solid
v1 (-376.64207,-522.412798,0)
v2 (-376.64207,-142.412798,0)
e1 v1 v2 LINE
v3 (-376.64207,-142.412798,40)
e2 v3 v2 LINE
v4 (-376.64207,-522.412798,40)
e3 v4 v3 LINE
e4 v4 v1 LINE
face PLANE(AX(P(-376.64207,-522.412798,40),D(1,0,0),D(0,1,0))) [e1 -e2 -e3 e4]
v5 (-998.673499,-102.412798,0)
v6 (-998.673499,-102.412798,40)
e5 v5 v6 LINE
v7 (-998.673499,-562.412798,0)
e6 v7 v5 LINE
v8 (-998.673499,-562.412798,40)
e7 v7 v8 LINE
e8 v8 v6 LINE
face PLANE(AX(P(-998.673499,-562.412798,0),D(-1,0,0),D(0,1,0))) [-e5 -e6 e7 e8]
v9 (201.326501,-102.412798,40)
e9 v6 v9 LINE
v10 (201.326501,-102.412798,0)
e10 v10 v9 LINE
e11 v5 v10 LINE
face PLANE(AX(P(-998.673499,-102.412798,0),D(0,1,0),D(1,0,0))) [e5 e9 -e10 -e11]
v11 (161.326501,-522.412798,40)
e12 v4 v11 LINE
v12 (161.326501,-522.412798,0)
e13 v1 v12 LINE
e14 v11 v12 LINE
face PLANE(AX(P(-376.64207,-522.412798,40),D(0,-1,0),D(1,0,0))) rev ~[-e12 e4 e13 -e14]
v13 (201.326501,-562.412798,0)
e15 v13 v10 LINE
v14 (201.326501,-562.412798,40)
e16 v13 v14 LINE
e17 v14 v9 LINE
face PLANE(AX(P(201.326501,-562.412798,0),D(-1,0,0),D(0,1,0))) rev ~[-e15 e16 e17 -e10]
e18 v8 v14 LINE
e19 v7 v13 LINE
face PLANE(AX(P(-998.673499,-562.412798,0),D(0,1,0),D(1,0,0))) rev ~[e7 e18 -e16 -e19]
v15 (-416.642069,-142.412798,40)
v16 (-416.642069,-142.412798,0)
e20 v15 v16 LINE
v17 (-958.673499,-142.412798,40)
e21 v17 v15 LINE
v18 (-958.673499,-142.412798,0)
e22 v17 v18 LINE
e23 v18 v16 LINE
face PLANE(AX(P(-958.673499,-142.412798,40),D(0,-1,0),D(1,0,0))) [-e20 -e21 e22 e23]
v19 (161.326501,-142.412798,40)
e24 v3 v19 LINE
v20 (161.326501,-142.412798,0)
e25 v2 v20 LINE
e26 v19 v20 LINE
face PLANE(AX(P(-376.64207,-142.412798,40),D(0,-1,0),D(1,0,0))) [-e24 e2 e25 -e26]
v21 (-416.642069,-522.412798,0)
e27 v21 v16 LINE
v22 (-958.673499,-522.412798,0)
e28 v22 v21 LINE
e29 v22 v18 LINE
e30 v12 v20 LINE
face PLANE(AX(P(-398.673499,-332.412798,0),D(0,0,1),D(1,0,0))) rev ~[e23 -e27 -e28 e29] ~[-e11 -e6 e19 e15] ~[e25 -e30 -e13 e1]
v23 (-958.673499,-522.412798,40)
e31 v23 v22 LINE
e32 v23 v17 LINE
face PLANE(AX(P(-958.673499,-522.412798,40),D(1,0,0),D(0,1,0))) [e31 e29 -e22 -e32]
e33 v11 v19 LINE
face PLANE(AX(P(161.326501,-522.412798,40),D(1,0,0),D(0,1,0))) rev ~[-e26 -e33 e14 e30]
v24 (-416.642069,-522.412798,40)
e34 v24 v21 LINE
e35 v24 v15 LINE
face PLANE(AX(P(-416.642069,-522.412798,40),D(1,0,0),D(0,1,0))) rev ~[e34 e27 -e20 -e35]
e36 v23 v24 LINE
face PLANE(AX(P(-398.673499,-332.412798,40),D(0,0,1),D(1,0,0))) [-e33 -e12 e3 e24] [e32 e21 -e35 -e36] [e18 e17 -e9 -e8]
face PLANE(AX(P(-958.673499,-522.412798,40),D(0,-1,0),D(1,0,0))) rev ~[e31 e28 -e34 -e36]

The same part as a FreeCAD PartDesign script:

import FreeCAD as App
import Part
import Sketcher
Q = App.Units.Quantity

doc = App.newDocument("Part")
body = doc.addObject("PartDesign::Body", "Body")

# Sketch on XY plane
sketch1 = body.newObject("Sketcher::SketchObject", "Sketch")
sketch1.AttachmentSupport = (doc.getObject("XY_Plane"), [""])
sketch1.MapMode = "FlatFace"
sketch1.addGeometry([
    Part.LineSegment(App.Vector(-999, -102, 0), App.Vector(-999, -562, 0)),
    Part.LineSegment(App.Vector(-999, -562, 0), App.Vector(201, -562, 0)),
    Part.LineSegment(App.Vector(201, -562, 0), App.Vector(201, -102, 0)),
    Part.LineSegment(App.Vector(201, -102, 0), App.Vector(-999, -102, 0)),
], False)
sketch1.addConstraint([
    Sketcher.Constraint("Coincident", 0, 2, 1, 1),
    Sketcher.Constraint("Coincident", 1, 2, 2, 1),
    Sketcher.Constraint("Coincident", 2, 2, 3, 1),
    Sketcher.Constraint("Coincident", 3, 2, 0, 1),
    Sketcher.Constraint("Vertical", 0),
    Sketcher.Constraint("Horizontal", 1),
    Sketcher.Constraint("Vertical", 2),
    Sketcher.Constraint("Horizontal", 3),
    Sketcher.Constraint("DistanceX", 1, 1, 1, 2, Q("1200 mm")),
    Sketcher.Constraint("DistanceY", 0, 2, 0, 1, Q("460 mm")),
    Sketcher.Constraint("DistanceX", 0, 2, -1, 1, Q("998.673499 mm")),
    Sketcher.Constraint("DistanceY", 0, 2, -1, 1, Q("562.412798 mm")),
])
pad1 = body.newObject("PartDesign::Pad", "Pad")
pad1.Profile = sketch1
pad1.Length = 40

# Sketch on XY plane
sketch2 = body.newObject("Sketcher::SketchObject", "Sketch001")
sketch2.AttachmentSupport = (doc.getObject("XY_Plane"), [""])
sketch2.MapMode = "FlatFace"
sketch2.AttachmentOffset = App.Placement(App.Vector(0, 0, 40), App.Rotation())
sketch2.addGeometry([
    Part.LineSegment(App.Vector(-959, -142, 0), App.Vector(-959, -522, 0)),  # 0
    Part.LineSegment(App.Vector(-959, -522, 0), App.Vector(-417, -522, 0)),  # 1
    Part.LineSegment(App.Vector(-417, -522, 0), App.Vector(-417, -142, 0)),  # 2
    Part.LineSegment(App.Vector(-417, -142, 0), App.Vector(-959, -142, 0)),  # 3
    Part.LineSegment(App.Vector(-377, -142, 0), App.Vector(-377, -522, 0)),  # 4
    Part.LineSegment(App.Vector(-377, -522, 0), App.Vector(161, -522, 0)),  # 5
    Part.LineSegment(App.Vector(161, -522, 0), App.Vector(161, -142, 0)),  # 6
    Part.LineSegment(App.Vector(161, -142, 0), App.Vector(-377, -142, 0)),  # 7
], False)
sketch2.addConstraint([
    Sketcher.Constraint("Coincident", 0, 2, 1, 1),
    Sketcher.Constraint("Coincident", 1, 2, 2, 1),
    Sketcher.Constraint("Coincident", 2, 2, 3, 1),
    Sketcher.Constraint("Coincident", 3, 2, 0, 1),
    Sketcher.Constraint("Coincident", 4, 2, 5, 1),
    Sketcher.Constraint("Coincident", 5, 2, 6, 1),
    Sketcher.Constraint("Coincident", 6, 2, 7, 1),
    Sketcher.Constraint("Coincident", 7, 2, 4, 1),
    Sketcher.Constraint("Vertical", 0),
    Sketcher.Constraint("Horizontal", 1),
    Sketcher.Constraint("Vertical", 2),
    Sketcher.Constraint("Horizontal", 3),
    Sketcher.Constraint("Vertical", 4),
    Sketcher.Constraint("Horizontal", 5),
    Sketcher.Constraint("Vertical", 6),
    Sketcher.Constraint("Horizontal", 7),
    Sketcher.Constraint("Horizontal", 1, 2, 4, 2),
    Sketcher.Constraint("Horizontal", 3, 2, 6, 2),
    Sketcher.Constraint("DistanceY", 0, 2, 0, 1, Q("380 mm")),
    Sketcher.Constraint("DistanceX", 1, 2, 4, 2, Q("39.999999 mm")),
    Sketcher.Constraint("DistanceX", 0, 2, 5, 2, Q("1119.999999 mm")),
    Sketcher.Constraint("DistanceX", 1, 1, 1, 2, Q("542.031429 mm")),
    Sketcher.Constraint("DistanceX", 0, 2, -1, 1, Q("958.673499 mm")),
    Sketcher.Constraint("DistanceY", 0, 2, -1, 1, Q("522.412798 mm")),
])
pocket1 = body.newObject("PartDesign::Pocket", "Pocket")
pocket1.Profile = sketch2
pocket1.Type = "ThroughAll"

doc.recompute()
